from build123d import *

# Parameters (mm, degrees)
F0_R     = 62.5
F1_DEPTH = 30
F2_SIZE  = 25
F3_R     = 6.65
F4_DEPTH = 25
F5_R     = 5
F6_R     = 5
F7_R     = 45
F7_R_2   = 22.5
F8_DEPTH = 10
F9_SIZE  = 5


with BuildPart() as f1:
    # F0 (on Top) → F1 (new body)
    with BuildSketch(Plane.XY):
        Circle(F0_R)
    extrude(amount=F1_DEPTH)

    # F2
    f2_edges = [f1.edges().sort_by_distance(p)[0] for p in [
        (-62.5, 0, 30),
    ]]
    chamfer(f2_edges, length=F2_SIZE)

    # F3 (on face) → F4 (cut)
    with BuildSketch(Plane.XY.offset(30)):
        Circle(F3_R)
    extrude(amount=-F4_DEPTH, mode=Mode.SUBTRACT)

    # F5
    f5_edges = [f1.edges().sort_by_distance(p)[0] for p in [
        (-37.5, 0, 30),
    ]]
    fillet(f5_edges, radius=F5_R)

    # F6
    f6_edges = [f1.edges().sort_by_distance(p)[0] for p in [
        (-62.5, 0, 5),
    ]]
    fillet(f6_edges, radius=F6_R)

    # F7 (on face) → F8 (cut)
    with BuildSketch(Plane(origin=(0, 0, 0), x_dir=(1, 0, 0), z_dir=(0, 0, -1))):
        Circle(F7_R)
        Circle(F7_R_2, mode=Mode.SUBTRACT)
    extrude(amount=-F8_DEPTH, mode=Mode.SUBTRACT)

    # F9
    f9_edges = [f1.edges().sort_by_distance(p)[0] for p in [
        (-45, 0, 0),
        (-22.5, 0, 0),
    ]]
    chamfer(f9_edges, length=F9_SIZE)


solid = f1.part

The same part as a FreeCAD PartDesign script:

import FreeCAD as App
import Part
import Sketcher

V = App.Vector


def edges_at(feature, points):
    """Names of the edges that pass closest to the given points."""
    edges = feature.Shape.Edges
    near = lambda p: min(range(len(edges)), key=lambda i: edges[i].distToShape(Part.Vertex(*p))[0])
    return sorted({f"Edge{near(p) + 1}" for p in points})

doc = App.newDocument("Part")
body = doc.addObject("PartDesign::Body", "Body")

sketch1 = doc.addObject("Sketcher::SketchObject", "Sketch")
body.addObject(sketch1)
sketch1.AttachmentSupport = (doc.XY_Plane, [""])
sketch1.MapMode = "FlatFace"
sketch1.addGeometry(Part.Circle(V(0, 0, 0), V(0, 0, 1), 62.5), False)
sketch1.addConstraint([
    Sketcher.Constraint("Coincident", 0, 3, -1, 1),
    Sketcher.Constraint("Diameter", 0, 125.0),
])
pad1 = doc.addObject("PartDesign::Pad", "Pad")
body.addObject(pad1)
pad1.Profile = sketch1
pad1.Length = 30
doc.recompute()

chamfer = doc.addObject("PartDesign::Chamfer", "Chamfer")
body.addObject(chamfer)
chamfer.Base = (pad1, edges_at(pad1, [(-62.5, 0, 30)]))
chamfer.Size = 25

sketch2 = doc.addObject("Sketcher::SketchObject", "Sketch001")
body.addObject(sketch2)
sketch2.AttachmentSupport = (doc.XY_Plane, [""])
sketch2.MapMode = "FlatFace"
sketch2.AttachmentOffset = App.Placement(V(0, 0, 30), App.Rotation())
sketch2.addGeometry(Part.Circle(V(0, 0, 0), V(0, 0, 1), 6.65), False)
sketch2.addConstraint([
    Sketcher.Constraint("Coincident", 0, 3, -1, 1),
    Sketcher.Constraint("Diameter", 0, 13.3),
])
pocket1 = doc.addObject("PartDesign::Pocket", "Pocket")
body.addObject(pocket1)
pocket1.Profile = sketch2
pocket1.Length = 25
doc.recompute()

fillet = doc.addObject("PartDesign::Fillet", "Fillet")
body.addObject(fillet)
fillet.Base = (pocket1, edges_at(pocket1, [(-37.5, 0, 30)]))
fillet.Radius = 5
doc.recompute()

fillet2 = doc.addObject("PartDesign::Fillet", "Fillet001")
body.addObject(fillet2)
fillet2.Base = (fillet, edges_at(fillet, [(-62.5, 0, 5)]))
fillet2.Radius = 5

sketch3 = doc.addObject("Sketcher::SketchObject", "Sketch002")
body.addObject(sketch3)
sketch3.AttachmentSupport = (doc.XY_Plane, [""])
sketch3.MapMode = "FlatFace"
sketch3.addGeometry([
    Part.Circle(V(0, 0, 0), V(0, 0, 1), 45),
    Part.Circle(V(0, 0, 0), V(0, 0, 1), 22.5),
], False)
sketch3.addConstraint([
    Sketcher.Constraint("Coincident", 0, 3, -1, 1),
    Sketcher.Constraint("Coincident", 1, 3, -1, 1),
    Sketcher.Constraint("Diameter", 0, 90.0),
    Sketcher.Constraint("Diameter", 1, 45.0),
])
pocket2 = doc.addObject("PartDesign::Pocket", "Pocket001")
body.addObject(pocket2)
pocket2.Profile = sketch3
pocket2.Length = 10
pocket2.Reversed = True
doc.recompute()

chamfer2 = doc.addObject("PartDesign::Chamfer", "Chamfer001")
body.addObject(chamfer2)
chamfer2.Base = (pocket2, edges_at(pocket2, [(-45, 0, 0), (-22.5, 0, 0)]))
chamfer2.Size = 5

doc.recompute()
